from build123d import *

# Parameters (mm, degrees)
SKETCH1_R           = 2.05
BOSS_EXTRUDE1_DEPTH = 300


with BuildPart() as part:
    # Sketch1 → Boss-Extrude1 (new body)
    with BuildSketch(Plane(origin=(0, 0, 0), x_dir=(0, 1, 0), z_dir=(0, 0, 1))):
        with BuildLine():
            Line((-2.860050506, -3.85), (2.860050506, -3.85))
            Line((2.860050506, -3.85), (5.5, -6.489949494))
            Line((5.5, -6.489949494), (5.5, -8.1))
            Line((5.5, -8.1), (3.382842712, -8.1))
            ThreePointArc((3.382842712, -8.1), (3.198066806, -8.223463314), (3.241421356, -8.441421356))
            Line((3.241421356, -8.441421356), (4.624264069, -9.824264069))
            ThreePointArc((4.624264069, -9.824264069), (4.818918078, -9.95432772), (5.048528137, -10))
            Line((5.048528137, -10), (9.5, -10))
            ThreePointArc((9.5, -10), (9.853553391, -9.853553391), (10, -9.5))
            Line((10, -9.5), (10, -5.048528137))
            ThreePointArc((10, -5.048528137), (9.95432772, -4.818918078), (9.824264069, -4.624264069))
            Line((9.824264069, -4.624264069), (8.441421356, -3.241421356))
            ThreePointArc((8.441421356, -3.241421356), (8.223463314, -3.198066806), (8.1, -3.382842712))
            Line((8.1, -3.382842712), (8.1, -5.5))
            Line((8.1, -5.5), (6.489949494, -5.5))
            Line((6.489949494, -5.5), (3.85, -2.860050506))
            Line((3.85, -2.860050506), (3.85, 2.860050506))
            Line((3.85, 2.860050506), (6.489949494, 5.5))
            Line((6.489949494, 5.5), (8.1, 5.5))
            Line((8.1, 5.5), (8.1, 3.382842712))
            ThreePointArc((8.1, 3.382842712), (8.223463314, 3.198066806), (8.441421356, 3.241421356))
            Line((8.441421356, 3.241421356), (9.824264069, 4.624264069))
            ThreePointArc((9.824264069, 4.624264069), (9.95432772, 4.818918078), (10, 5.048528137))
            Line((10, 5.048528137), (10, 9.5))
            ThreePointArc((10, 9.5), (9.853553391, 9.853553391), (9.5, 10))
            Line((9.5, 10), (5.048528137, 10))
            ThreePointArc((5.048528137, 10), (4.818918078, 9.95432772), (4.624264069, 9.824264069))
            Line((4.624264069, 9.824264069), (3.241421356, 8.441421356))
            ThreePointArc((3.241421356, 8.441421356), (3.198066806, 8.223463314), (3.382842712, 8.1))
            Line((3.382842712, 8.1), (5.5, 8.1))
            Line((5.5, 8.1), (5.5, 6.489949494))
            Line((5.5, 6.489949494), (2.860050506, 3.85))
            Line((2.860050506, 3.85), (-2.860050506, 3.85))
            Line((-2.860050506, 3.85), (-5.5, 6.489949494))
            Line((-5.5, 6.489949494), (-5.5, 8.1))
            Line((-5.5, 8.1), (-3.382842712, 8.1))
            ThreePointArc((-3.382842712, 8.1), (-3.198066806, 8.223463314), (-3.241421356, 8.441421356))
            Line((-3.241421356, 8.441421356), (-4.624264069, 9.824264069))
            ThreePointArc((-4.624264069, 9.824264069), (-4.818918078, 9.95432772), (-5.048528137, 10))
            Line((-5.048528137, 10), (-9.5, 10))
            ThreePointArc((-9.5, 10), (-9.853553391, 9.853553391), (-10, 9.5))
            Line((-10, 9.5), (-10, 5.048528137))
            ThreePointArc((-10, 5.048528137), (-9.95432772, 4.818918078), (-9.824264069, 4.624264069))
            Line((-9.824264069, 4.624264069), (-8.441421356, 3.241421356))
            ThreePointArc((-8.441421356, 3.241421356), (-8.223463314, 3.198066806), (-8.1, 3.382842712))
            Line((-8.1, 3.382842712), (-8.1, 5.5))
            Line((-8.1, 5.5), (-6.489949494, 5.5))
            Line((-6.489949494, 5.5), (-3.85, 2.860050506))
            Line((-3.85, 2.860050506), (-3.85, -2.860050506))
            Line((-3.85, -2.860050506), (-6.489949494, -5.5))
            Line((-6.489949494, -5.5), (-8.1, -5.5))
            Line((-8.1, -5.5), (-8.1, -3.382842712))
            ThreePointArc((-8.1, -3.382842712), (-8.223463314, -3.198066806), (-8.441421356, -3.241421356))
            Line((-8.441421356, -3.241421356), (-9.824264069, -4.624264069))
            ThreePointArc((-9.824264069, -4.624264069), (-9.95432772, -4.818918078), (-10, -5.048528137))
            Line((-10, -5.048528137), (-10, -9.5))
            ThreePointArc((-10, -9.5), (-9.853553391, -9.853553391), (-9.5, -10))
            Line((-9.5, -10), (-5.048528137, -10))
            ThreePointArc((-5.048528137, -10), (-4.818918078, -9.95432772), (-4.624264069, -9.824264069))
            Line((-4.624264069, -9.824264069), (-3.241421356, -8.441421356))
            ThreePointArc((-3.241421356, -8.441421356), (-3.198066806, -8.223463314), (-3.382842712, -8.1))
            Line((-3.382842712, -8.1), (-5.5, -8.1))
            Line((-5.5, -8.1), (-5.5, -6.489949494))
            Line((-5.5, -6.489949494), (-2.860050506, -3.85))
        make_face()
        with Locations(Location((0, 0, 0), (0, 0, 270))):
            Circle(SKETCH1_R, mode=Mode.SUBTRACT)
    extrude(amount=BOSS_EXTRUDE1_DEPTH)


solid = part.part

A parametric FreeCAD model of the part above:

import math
import FreeCAD as App
import Part
import Sketcher

V = App.Vector

doc = App.newDocument("Part")
params = doc.addObject("Spreadsheet::Sheet", "Params")
for row, (alias, value) in enumerate([
    ("sketch1_diameter", "4.1 mm"),
    ("sketch1_radius", "0.2 mm"),
    ("sketch1_radius2", "0.6 mm"),
    ("sketch1_radius3", "0.5 mm"),
    ("pad1_length", "300 mm"),
], start=1):
    params.set(f"A{row}", alias)
    params.set(f"B{row}", "=" + value)
    params.setAlias(f"B{row}", alias)

body = doc.addObject("PartDesign::Body", "Body")

sketch1 = body.newObject("Sketcher::SketchObject", "Sketch")
sketch1.AttachmentSupport = (doc.getObject("XY_Plane"), [""])
sketch1.MapMode = "FlatFace"
sketch1.addGeometry([
    Part.LineSegment(V(3.85, -2.86, 0), V(3.85, 2.86, 0)),
    Part.LineSegment(V(3.85, 2.86, 0), V(6.49, 5.5, 0)),
    Part.LineSegment(V(6.49, 5.5, 0), V(8.1, 5.5, 0)),
    Part.LineSegment(V(8.1, 5.5, 0), V(8.1, 3.38, 0)),
    Part.ArcOfCircle(Part.Circle(V(8.3, 3.38, 0), V(0, 0, 1), 0.2), math.radians(-180), math.radians(-45)),
    Part.LineSegment(V(8.44, 3.24, 0), V(9.82, 4.62, 0)),
    Part.ArcOfCircle(Part.Circle(V(9.4, 5.05, 0), V(0, 0, 1), 0.6), math.radians(-45), math.radians(0)),
    Part.LineSegment(V(10, 5.05, 0), V(10, 9.5, 0)),
    Part.ArcOfCircle(Part.Circle(V(9.5, 9.5, 0), V(0, 0, 1), 0.5), math.radians(0), math.radians(90)),
    Part.LineSegment(V(9.5, 10, 0), V(5.05, 10, 0)),
    Part.ArcOfCircle(Part.Circle(V(5.05, 9.4, 0), V(0, 0, 1), 0.6), math.radians(90), math.radians(135)),
    Part.LineSegment(V(4.62, 9.82, 0), V(3.24, 8.44, 0)),
    Part.ArcOfCircle(Part.Circle(V(3.38, 8.3, 0), V(0, 0, 1), 0.2), math.radians(135), math.radians(270)),
    Part.LineSegment(V(3.38, 8.1, 0), V(5.5, 8.1, 0)),
    Part.LineSegment(V(5.5, 8.1, 0), V(5.5, 6.49, 0)),
    Part.LineSegment(V(5.5, 6.49, 0), V(2.86, 3.85, 0)),
    Part.LineSegment(V(2.86, 3.85, 0), V(-2.86, 3.85, 0)),
    Part.LineSegment(V(-2.86, 3.85, 0), V(-5.5, 6.49, 0)),
    Part.LineSegment(V(-5.5, 6.49, 0), V(-5.5, 8.1, 0)),
    Part.LineSegment(V(-5.5, 8.1, 0), V(-3.38, 8.1, 0)),
    Part.ArcOfCircle(Part.Circle(V(-3.38, 8.3, 0), V(0, 0, 1), 0.2), math.radians(-90), math.radians(45)),
    Part.LineSegment(V(-3.24, 8.44, 0), V(-4.62, 9.82, 0)),
    Part.ArcOfCircle(Part.Circle(V(-5.05, 9.4, 0), V(0, 0, 1), 0.6), math.radians(45), math.radians(90)),
    Part.LineSegment(V(-5.05, 10, 0), V(-9.5, 10, 0)),
    Part.ArcOfCircle(Part.Circle(V(-9.5, 9.5, 0), V(0, 0, 1), 0.5), math.radians(90), math.radians(180)),
    Part.LineSegment(V(-10, 9.5, 0), V(-10, 5.05, 0)),
    Part.ArcOfCircle(Part.Circle(V(-9.4, 5.05, 0), V(0, 0, 1), 0.6), math.radians(180), math.radians(225)),
    Part.LineSegment(V(-9.82, 4.62, 0), V(-8.44, 3.24, 0)),
    Part.ArcOfCircle(Part.Circle(V(-8.3, 3.38, 0), V(0, 0, 1), 0.2), math.radians(-135), math.radians(0)),
    Part.LineSegment(V(-8.1, 3.38, 0), V(-8.1, 5.5, 0)),
    Part.LineSegment(V(-8.1, 5.5, 0), V(-6.49, 5.5, 0)),
    Part.LineSegment(V(-6.49, 5.5, 0), V(-3.85, 2.86, 0)),
    Part.LineSegment(V(-3.85, 2.86, 0), V(-3.85, -2.86, 0)),
    Part.LineSegment(V(-3.85, -2.86, 0), V(-6.49, -5.5, 0)),
    Part.LineSegment(V(-6.49, -5.5, 0), V(-8.1, -5.5, 0)),
    Part.LineSegment(V(-8.1, -5.5, 0), V(-8.1, -3.38, 0)),
    Part.ArcOfCircle(Part.Circle(V(-8.3, -3.38, 0), V(0, 0, 1), 0.2), math.radians(0), math.radians(135)),
    Part.LineSegment(V(-8.44, -3.24, 0), V(-9.82, -4.62, 0)),
    Part.ArcOfCircle(Part.Circle(V(-9.4, -5.05, 0), V(0, 0, 1), 0.6), math.radians(135), math.radians(180)),
    Part.LineSegment(V(-10, -5.05, 0), V(-10, -9.5, 0)),
    Part.ArcOfCircle(Part.Circle(V(-9.5, -9.5, 0), V(0, 0, 1), 0.5), math.radians(180), math.radians(270)),
    Part.LineSegment(V(-9.5, -10, 0), V(-5.05, -10, 0)),
    Part.ArcOfCircle(Part.Circle(V(-5.05, -9.4, 0), V(0, 0, 1), 0.6), math.radians(-90), math.radians(-45)),
    Part.LineSegment(V(-4.62, -9.82, 0), V(-3.24, -8.44, 0)),
    Part.ArcOfCircle(Part.Circle(V(-3.38, -8.3, 0), V(0, 0, 1), 0.2), math.radians(-45), math.radians(90)),
    Part.LineSegment(V(-3.38, -8.1, 0), V(-5.5, -8.1, 0)),
    Part.LineSegment(V(-5.5, -8.1, 0), V(-5.5, -6.49, 0)),
    Part.LineSegment(V(-5.5, -6.49, 0), V(-2.86, -3.85, 0)),
    Part.LineSegment(V(-2.86, -3.85, 0), V(2.86, -3.85, 0)),
    Part.LineSegment(V(2.86, -3.85, 0), V(5.5, -6.49, 0)),
    Part.LineSegment(V(5.5, -6.49, 0), V(5.5, -8.1, 0)),
    Part.LineSegment(V(5.5, -8.1, 0), V(3.38, -8.1, 0)),
    Part.ArcOfCircle(Part.Circle(V(3.38, -8.3, 0), V(0, 0, 1), 0.2), math.radians(90), math.radians(225)),
    Part.LineSegment(V(3.24, -8.44, 0), V(4.62, -9.82, 0)),
    Part.ArcOfCircle(Part.Circle(V(5.05, -9.4, 0), V(0, 0, 1), 0.6), math.radians(-135), math.radians(-90)),
    Part.LineSegment(V(5.05, -10, 0), V(9.5, -10, 0)),
    Part.ArcOfCircle(Part.Circle(V(9.5, -9.5, 0), V(0, 0, 1), 0.5), math.radians(-90), math.radians(0)),
    Part.LineSegment(V(10, -9.5, 0), V(10, -5.05, 0)),
    Part.ArcOfCircle(Part.Circle(V(9.4, -5.05, 0), V(0, 0, 1), 0.6), math.radians(0), math.radians(45)),
    Part.LineSegment(V(9.82, -4.62, 0), V(8.44, -3.24, 0)),
    Part.ArcOfCircle(Part.Circle(V(8.3, -3.38, 0), V(0, 0, 1), 0.2), math.radians(45), math.radians(180)),
    Part.LineSegment(V(8.1, -3.38, 0), V(8.1, -5.5, 0)),
    Part.LineSegment(V(8.1, -5.5, 0), V(6.49, -5.5, 0)),
    Part.LineSegment(V(6.49, -5.5, 0), V(3.85, -2.86, 0)),
    Part.Circle(V(0, 0, 0), V(0, 0, 1), 2.05),
], False)
sketch1.addConstraint([
    Sketcher.Constraint("Coincident", 0, 2, 1, 1),
    Sketcher.Constraint("Coincident", 1, 2, 2, 1),
    Sketcher.Constraint("Coincident", 2, 2, 3, 1),
    Sketcher.Constraint("Tangent", 3, 2, 4, 1),
    Sketcher.Constraint("Tangent", 4, 2, 5, 1),
    Sketcher.Constraint("Tangent", 5, 2, 6, 1),
    Sketcher.Constraint("Tangent", 6, 2, 7, 1),
    Sketcher.Constraint("Tangent", 7, 2, 8, 1),
    Sketcher.Constraint("Tangent", 8, 2, 9, 1),
    Sketcher.Constraint("Tangent", 9, 2, 10, 1),
    Sketcher.Constraint("Tangent", 10, 2, 11, 1),
    Sketcher.Constraint("Tangent", 11, 2, 12, 1),
    Sketcher.Constraint("Tangent", 12, 2, 13, 1),
    Sketcher.Constraint("Coincident", 13, 2, 14, 1),
    Sketcher.Constraint("Coincident", 14, 2, 15, 1),
    Sketcher.Constraint("Coincident", 15, 2, 16, 1),
    Sketcher.Constraint("Coincident", 16, 2, 17, 1),
    Sketcher.Constraint("Coincident", 17, 2, 18, 1),
    Sketcher.Constraint("Coincident", 18, 2, 19, 1),
    Sketcher.Constraint("Tangent", 19, 2, 20, 1),
    Sketcher.Constraint("Tangent", 20, 2, 21, 1),
    Sketcher.Constraint("Tangent", 21, 2, 22, 1),
    Sketcher.Constraint("Tangent", 22, 2, 23, 1),
    Sketcher.Constraint("Tangent", 23, 2, 24, 1),
    Sketcher.Constraint("Tangent", 24, 2, 25, 1),
    Sketcher.Constraint("Tangent", 25, 2, 26, 1),
    Sketcher.Constraint("Tangent", 26, 2, 27, 1),
    Sketcher.Constraint("Tangent", 27, 2, 28, 1),
    Sketcher.Constraint("Tangent", 28, 2, 29, 1),
    Sketcher.Constraint("Coincident", 29, 2, 30, 1),
    Sketcher.Constraint("Coincident", 30, 2, 31, 1),
    Sketcher.Constraint("Coincident", 31, 2, 32, 1),
    Sketcher.Constraint("Coincident", 32, 2, 33, 1),
    Sketcher.Constraint("Coincident", 33, 2, 34, 1),
    Sketcher.Constraint("Coincident", 34, 2, 35, 1),
    Sketcher.Constraint("Tangent", 35, 2, 36, 1),
    Sketcher.Constraint("Tangent", 36, 2, 37, 1),
    Sketcher.Constraint("Tangent", 37, 2, 38, 1),
    Sketcher.Constraint("Tangent", 38, 2, 39, 1),
    Sketcher.Constraint("Tangent", 39, 2, 40, 1),
    Sketcher.Constraint("Tangent", 40, 2, 41, 1),
    Sketcher.Constraint("Tangent", 41, 2, 42, 1),
    Sketcher.Constraint("Tangent", 42, 2, 43, 1),
    Sketcher.Constraint("Tangent", 43, 2, 44, 1),
    Sketcher.Constraint("Tangent", 44, 2, 45, 1),
    Sketcher.Constraint("Coincident", 45, 2, 46, 1),
    Sketcher.Constraint("Coincident", 46, 2, 47, 1),
    Sketcher.Constraint("Coincident", 47, 2, 48, 1),
    Sketcher.Constraint("Coincident", 48, 2, 49, 1),
    Sketcher.Constraint("Coincident", 49, 2, 50, 1),
    Sketcher.Constraint("Coincident", 50, 2, 51, 1),
    Sketcher.Constraint("Tangent", 51, 2, 52, 1),
    Sketcher.Constraint("Tangent", 52, 2, 53, 1),
    Sketcher.Constraint("Tangent", 53, 2, 54, 1),
    Sketcher.Constraint("Tangent", 54, 2, 55, 1),
    Sketcher.Constraint("Tangent", 55, 2, 56, 1),
    Sketcher.Constraint("Tangent", 56, 2, 57, 1),
    Sketcher.Constraint("Tangent", 57, 2, 58, 1),
    Sketcher.Constraint("Tangent", 58, 2, 59, 1),
    Sketcher.Constraint("Tangent", 59, 2, 60, 1),
    Sketcher.Constraint("Tangent", 60, 2, 61, 1),
    Sketcher.Constraint("Coincident", 61, 2, 62, 1),
    Sketcher.Constraint("Coincident", 62, 2, 63, 1),
    Sketcher.Constraint("Coincident", 63, 2, 0, 1),
    Sketcher.Constraint("Vertical", 0),
    Sketcher.Constraint("Horizontal", 2),
    Sketcher.Constraint("Vertical", 3),
    Sketcher.Constraint("Vertical", 7),
    Sketcher.Constraint("Horizontal", 9),
    Sketcher.Constraint("Horizontal", 13),
    Sketcher.Constraint("Vertical", 14),
    Sketcher.Constraint("Horizontal", 16),
    Sketcher.Constraint("Vertical", 18),
    Sketcher.Constraint("Horizontal", 19),
    Sketcher.Constraint("Horizontal", 23),
    Sketcher.Constraint("Vertical", 25),
    Sketcher.Constraint("Vertical", 29),
    Sketcher.Constraint("Horizontal", 30),
    Sketcher.Constraint("Vertical", 32),
    Sketcher.Constraint("Horizontal", 34),
    Sketcher.Constraint("Vertical", 35),
    Sketcher.Constraint("Vertical", 39),
    Sketcher.Constraint("Horizontal", 41),
    Sketcher.Constraint("Horizontal", 45),
    Sketcher.Constraint("Vertical", 46),
    Sketcher.Constraint("Horizontal", 48),
    Sketcher.Constraint("Vertical", 50),
    Sketcher.Constraint("Horizontal", 51),
    Sketcher.Constraint("Horizontal", 55),
    Sketcher.Constraint("Vertical", 57),
    Sketcher.Constraint("Vertical", 61),
    Sketcher.Constraint("Horizontal", 62),
    Sketcher.Constraint("Coincident", 64, 3, -1, 1),
    Sketcher.Constraint("Equal", 6, 10),
    Sketcher.Constraint("Equal", 4, 12),
    Sketcher.Constraint("Equal", 12, 20),
    Sketcher.Constraint("Equal", 10, 22),
    Sketcher.Constraint("Equal", 8, 24),
    Sketcher.Constraint("Equal", 22, 26),
    Sketcher.Constraint("Equal", 20, 28),
    Sketcher.Constraint("Equal", 28, 36),
    Sketcher.Constraint("Equal", 26, 38),
    Sketcher.Constraint("Equal", 24, 40),
    Sketcher.Constraint("Equal", 38, 42),
    Sketcher.Constraint("Equal", 36, 44),
    Sketcher.Constraint("Equal", 44, 52),
    Sketcher.Constraint("Equal", 42, 54),
    Sketcher.Constraint("Equal", 40, 56),
    Sketcher.Constraint("Equal", 54, 58),
    Sketcher.Constraint("Equal", 52, 60),
    Sketcher.Constraint("Symmetric", 4, 3, 36, 3, -1, 1),
    Sketcher.Constraint("Symmetric", 6, 3, 38, 3, -1, 1),
    Sketcher.Constraint("Symmetric", 10, 3, 42, 3, -1, 1),
    Sketcher.Constraint("Symmetric", 12, 3, 44, 3, -1, 1),
    Sketcher.Constraint("Symmetric", 20, 3, 52, 3, -1, 1),
    Sketcher.Constraint("Symmetric", 22, 3, 54, 3, -1, 1),
    Sketcher.Constraint("Symmetric", 26, 3, 58, 3, -1, 1),
    Sketcher.Constraint("Symmetric", 28, 3, 60, 3, -1, 1),
    Sketcher.Constraint("Symmetric", 0, 2, 32, 2, -1, 1),
    Sketcher.Constraint("Symmetric", 1, 2, 33, 2, -1, 1),
    Sketcher.Constraint("Symmetric", 14, 2, 46, 2, -1, 1),
    Sketcher.Constraint("Symmetric", 15, 2, 47, 2, -1, 1),
    Sketcher.Constraint("Symmetric", 17, 2, 49, 2, -1, 1),
    Sketcher.Constraint("Symmetric", 30, 2, 62, 2, -1, 1),
    Sketcher.Constraint("Symmetric", 12, 3, 20, 3, -2),
    Sketcher.Constraint("Symmetric", 10, 3, 22, 3, -2),
    Sketcher.Constraint("Symmetric", 6, 3, 26, 3, -2),
    Sketcher.Constraint("Symmetric", 4, 3, 28, 3, -2),
    Sketcher.Constraint("Symmetric", 14, 2, 17, 2, -2),
    Sketcher.Constraint("Symmetric", 1, 2, 30, 2, -2),
    Sketcher.Constraint("Parallel", 1, 5),
    Sketcher.Constraint("Parallel", 5, 11),
    Sketcher.Constraint("Parallel", 11, 15),
    Sketcher.Constraint("Perpendicular", 15, 17),
    Sketcher.Constraint("Parallel", 17, 21),
    Sketcher.Constraint("Parallel", 27, 31),
    Sketcher.Constraint("Perpendicular", 47, 49),
    Sketcher.Constraint("Parallel", 59, 63),
    Sketcher.Constraint("Equal", 48, 0),
    Sketcher.Constraint("Equal", 51, 3),
    Sketcher.Constraint("Equal", 55, 7),
    Sketcher.Constraint("Equal", 62, 14),
    Sketcher.Constraint("Equal", 5, 11),
    Sketcher.Constraint("Equal", 1, 15),
    Sketcher.Constraint("Diameter", 64, 4.1),
    Sketcher.Constraint("Radius", 4, 0.2),
    Sketcher.Constraint("Radius", 6, 0.6),
    Sketcher.Constraint("Radius", 8, 0.5),
    Sketcher.Constraint("DistanceX", -1, 1, 6, 2, 10.0),
    Sketcher.Constraint("DistanceX", -1, 1, 4, 3, 8.3),
    Sketcher.Constraint("DistanceY", -1, 1, 1, 2, 5.5),
    Sketcher.Constraint("DistanceX", -1, 1, 0, 2, 3.85),
    Sketcher.Constraint("DistanceX", 16, 2, 16, 1, 5.720101),
    Sketcher.Constraint("DistanceX", 9, 2, 9, 1, 4.451472),
])
sketch1.setExpression("Constraints[144]", "Params.sketch1_diameter")
sketch1.setExpression("Constraints[145]", "Params.sketch1_radius")
sketch1.setExpression("Constraints[146]", "Params.sketch1_radius2")
sketch1.setExpression("Constraints[147]", "Params.sketch1_radius3")
pad1 = body.newObject("PartDesign::Pad", "Pad")
pad1.Profile = sketch1
pad1.setExpression("Length", "Params.pad1_length")

doc.recompute()
